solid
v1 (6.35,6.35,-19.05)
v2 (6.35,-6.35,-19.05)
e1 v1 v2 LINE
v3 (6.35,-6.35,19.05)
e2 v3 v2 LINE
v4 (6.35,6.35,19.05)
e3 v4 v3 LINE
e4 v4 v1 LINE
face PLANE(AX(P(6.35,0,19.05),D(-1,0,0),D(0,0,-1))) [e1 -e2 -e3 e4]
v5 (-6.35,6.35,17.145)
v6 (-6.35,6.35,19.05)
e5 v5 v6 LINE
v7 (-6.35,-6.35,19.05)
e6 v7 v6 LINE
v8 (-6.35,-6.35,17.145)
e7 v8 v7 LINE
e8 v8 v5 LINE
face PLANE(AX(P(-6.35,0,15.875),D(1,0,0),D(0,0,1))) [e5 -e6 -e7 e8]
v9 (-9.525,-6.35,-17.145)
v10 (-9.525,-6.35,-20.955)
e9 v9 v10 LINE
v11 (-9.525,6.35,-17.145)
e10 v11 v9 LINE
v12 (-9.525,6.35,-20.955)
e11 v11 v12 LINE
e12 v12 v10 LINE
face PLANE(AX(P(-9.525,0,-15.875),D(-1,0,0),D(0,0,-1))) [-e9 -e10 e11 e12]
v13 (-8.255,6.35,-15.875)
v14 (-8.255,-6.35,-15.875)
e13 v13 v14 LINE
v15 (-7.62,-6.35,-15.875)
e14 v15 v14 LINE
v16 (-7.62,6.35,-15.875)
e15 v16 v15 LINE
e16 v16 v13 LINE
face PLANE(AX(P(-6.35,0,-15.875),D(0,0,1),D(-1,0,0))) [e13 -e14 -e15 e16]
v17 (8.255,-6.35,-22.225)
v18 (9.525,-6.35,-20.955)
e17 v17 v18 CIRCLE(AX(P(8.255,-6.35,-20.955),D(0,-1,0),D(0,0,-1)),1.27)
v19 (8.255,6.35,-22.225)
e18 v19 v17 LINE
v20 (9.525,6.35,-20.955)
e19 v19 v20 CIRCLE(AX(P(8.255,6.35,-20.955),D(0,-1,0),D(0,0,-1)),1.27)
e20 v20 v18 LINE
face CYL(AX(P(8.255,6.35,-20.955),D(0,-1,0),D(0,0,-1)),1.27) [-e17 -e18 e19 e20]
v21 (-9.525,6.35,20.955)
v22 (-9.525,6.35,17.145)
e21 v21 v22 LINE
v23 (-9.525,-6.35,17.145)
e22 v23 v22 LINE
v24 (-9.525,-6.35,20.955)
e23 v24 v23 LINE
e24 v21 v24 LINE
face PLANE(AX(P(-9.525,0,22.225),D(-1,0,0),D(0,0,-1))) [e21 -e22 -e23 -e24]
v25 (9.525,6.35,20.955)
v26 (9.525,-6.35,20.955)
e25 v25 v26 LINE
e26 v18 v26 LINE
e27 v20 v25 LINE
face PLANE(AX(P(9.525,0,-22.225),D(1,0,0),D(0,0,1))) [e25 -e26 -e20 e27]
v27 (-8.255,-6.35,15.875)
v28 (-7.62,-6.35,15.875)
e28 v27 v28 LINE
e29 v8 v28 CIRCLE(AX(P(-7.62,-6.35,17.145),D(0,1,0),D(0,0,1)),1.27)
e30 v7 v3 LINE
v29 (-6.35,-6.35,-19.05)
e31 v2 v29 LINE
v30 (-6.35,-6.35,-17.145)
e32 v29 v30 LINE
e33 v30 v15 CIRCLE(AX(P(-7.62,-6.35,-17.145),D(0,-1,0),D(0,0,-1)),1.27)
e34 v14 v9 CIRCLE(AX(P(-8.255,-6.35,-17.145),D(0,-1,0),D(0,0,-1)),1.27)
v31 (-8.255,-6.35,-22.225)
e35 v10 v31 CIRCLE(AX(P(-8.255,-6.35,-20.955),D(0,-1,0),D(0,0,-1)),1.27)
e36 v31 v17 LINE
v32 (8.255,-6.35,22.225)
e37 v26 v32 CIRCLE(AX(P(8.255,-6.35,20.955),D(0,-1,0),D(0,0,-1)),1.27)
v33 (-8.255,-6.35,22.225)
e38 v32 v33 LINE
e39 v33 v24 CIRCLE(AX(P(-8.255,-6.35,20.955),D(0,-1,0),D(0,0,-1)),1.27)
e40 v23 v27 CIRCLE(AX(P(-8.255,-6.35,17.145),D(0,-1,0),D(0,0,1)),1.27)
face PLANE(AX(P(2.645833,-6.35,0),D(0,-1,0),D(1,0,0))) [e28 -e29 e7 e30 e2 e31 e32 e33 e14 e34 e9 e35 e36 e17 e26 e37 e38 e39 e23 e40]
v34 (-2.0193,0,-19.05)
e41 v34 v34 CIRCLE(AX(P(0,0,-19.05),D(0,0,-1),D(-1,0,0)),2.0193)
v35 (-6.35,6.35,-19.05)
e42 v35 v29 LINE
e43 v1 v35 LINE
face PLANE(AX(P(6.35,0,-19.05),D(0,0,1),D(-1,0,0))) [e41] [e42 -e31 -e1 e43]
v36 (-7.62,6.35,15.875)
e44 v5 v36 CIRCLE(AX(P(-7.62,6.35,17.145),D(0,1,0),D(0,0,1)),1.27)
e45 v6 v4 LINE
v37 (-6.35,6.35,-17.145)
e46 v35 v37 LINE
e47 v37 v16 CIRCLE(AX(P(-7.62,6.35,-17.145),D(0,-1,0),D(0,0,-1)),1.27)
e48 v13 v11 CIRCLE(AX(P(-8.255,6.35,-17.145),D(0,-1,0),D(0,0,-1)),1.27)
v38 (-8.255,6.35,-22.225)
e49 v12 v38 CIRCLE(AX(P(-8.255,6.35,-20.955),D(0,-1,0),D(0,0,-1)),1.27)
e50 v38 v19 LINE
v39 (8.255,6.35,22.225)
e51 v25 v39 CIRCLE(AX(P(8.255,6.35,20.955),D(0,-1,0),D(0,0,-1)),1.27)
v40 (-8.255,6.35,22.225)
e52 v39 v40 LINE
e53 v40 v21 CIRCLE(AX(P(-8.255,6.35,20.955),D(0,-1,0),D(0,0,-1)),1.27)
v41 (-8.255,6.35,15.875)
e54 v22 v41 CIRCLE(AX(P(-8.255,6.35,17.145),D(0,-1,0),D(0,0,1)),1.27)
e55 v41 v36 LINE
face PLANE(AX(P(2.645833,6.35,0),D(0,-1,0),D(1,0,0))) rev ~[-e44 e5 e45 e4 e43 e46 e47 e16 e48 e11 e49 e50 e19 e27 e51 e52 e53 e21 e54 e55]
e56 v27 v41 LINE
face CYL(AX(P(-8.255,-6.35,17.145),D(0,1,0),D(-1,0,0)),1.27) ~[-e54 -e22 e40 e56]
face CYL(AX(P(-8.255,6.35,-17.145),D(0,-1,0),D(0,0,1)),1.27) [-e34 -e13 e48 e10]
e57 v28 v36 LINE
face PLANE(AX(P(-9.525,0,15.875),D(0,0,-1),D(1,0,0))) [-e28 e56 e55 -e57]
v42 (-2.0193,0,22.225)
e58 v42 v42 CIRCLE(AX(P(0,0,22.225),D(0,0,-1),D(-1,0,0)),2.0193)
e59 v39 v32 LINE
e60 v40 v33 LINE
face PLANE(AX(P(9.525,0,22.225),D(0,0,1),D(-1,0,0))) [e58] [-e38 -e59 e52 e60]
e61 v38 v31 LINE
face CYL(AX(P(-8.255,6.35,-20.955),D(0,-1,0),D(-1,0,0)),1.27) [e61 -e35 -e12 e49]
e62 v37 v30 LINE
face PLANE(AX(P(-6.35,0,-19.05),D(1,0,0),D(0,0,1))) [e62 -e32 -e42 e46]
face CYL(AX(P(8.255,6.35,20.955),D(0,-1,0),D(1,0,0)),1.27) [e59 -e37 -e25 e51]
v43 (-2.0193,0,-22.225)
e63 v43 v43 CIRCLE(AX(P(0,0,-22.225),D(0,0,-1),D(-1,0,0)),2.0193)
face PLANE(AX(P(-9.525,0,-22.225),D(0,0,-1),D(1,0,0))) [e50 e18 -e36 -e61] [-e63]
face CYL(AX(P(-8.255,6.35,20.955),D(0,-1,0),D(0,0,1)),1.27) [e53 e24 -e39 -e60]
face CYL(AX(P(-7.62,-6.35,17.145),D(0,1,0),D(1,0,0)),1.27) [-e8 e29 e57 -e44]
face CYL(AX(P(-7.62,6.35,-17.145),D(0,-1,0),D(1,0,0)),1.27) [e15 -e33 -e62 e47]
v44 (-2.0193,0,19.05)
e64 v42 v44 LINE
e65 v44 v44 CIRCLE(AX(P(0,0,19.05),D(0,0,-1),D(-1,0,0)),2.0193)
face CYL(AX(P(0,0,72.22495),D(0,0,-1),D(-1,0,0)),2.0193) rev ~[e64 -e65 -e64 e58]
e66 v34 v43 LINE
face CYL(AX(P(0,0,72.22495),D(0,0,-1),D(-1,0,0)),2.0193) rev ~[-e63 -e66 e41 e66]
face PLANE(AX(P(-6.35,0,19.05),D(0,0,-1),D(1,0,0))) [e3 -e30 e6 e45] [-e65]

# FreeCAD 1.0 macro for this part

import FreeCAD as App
import Part
import Sketcher

V = App.Vector
Q = App.Units.Quantity


def edges_at(feature, points):
    """Names of the edges that pass closest to the given points."""
    edges = feature.Shape.Edges
    near = lambda p: min(range(len(edges)), key=lambda i: edges[i].distToShape(Part.Vertex(*p))[0])
    return sorted({f"Edge{near(p) + 1}" for p in points})


def add_polygon(sketch, points):
    """Adds a closed chain of lines whose ends are joined by coincident constraints."""
    first, n = sketch.GeometryCount, len(points)
    for a, b in zip(points, points[1:] + points[:1]):
        sketch.addGeometry(Part.LineSegment(App.Vector(*a, 0), App.Vector(*b, 0)), False)
    for i in range(n):
        sketch.addConstraint(Sketcher.Constraint("Coincident", first + i, 2, first + (i + 1) % n, 1))

doc = App.newDocument("Part")
body = doc.addObject("PartDesign::Body", "Body")

sketch1 = doc.addObject("Sketcher::SketchObject", "Sketch")
body.addObject(sketch1)
sketch1.AttachmentSupport = (doc.XZ_Plane, [""])
sketch1.MapMode = "FlatFace"
add_polygon(sketch1, [(-6.3, 19.1), (6.3, 19.1), (6.3, -19.1), (-6.3, -19.1), (-6.3, -15.9), (-9.5, -15.9), (-9.5, -22.2), (9.5, -22.2), (9.5, 22.2), (-9.5, 22.2), (-9.5, 15.9), (-6.3, 15.9)])
sketch1.addConstraint(Sketcher.Constraint("Horizontal", 0))
sketch1.addConstraint(Sketcher.Constraint("Vertical", 1))
sketch1.addConstraint(Sketcher.Constraint("Horizontal", 2))
sketch1.addConstraint(Sketcher.Constraint("Vertical", 3))
sketch1.addConstraint(Sketcher.Constraint("Horizontal", 4))
sketch1.addConstraint(Sketcher.Constraint("Vertical", 5))
sketch1.addConstraint(Sketcher.Constraint("Horizontal", 6))
sketch1.addConstraint(Sketcher.Constraint("Vertical", 7))
sketch1.addConstraint(Sketcher.Constraint("Horizontal", 8))
sketch1.addConstraint(Sketcher.Constraint("Vertical", 9))
sketch1.addConstraint(Sketcher.Constraint("Horizontal", 10))
sketch1.addConstraint(Sketcher.Constraint("Vertical", 11))
sketch1.addConstraint(Sketcher.Constraint("Symmetric", 0, 2, 2, 2, -1, 1))
sketch1.addConstraint(Sketcher.Constraint("Symmetric", 5, 2, 7, 2, -1, 1))
sketch1.addConstraint(Sketcher.Constraint("Symmetric", 4, 2, 9, 2, -1))
sketch1.addConstraint(Sketcher.Constraint("Vertical", 3, 2, 10, 2))
sketch1.addConstraint(Sketcher.Constraint("Equal", 10, 3))
sketch1.addConstraint(Sketcher.Constraint("DistanceX", 0, 1, 0, 2, Q("0.5 in")))
sketch1.addConstraint(Sketcher.Constraint("DistanceY", 1, 2, 1, 1, Q("1.5 in")))
sketch1.addConstraint(Sketcher.Constraint("DistanceX", 6, 1, 6, 2, Q("0.75 in")))
sketch1.addConstraint(Sketcher.Constraint("DistanceY", 5, 2, 5, 1, Q("0.25 in")))
pad1 = doc.addObject("PartDesign::Pad", "Pad")
body.addObject(pad1)
pad1.Profile = sketch1
pad1.Type = "TwoLengths"
pad1.Length = Q("0.25 in")
pad1.Length2 = Q("0.25 in")

sketch2 = doc.addObject("Sketcher::SketchObject", "Sketch001")
body.addObject(sketch2)
sketch2.AttachmentSupport = (doc.XY_Plane, [""])
sketch2.MapMode = "FlatFace"
sketch2.AttachmentOffset = App.Placement(V(0, 0, 0.875 * 25.4), App.Rotation())
sketch2.addGeometry(Part.Circle(V(0, 0, 0), V(0, 0, 1), 2), False)
sketch2.addConstraint(Sketcher.Constraint("Coincident", 0, 3, -1, 1))
sketch2.addConstraint(Sketcher.Constraint("Diameter", 0, Q("0.159 in")))
doc.recompute()
hole = doc.addObject("PartDesign::Hole", "Hole")
body.addObject(hole)
hole.Profile = sketch2
hole.ThreadType = "None"
hole.Diameter = Q("0.159 in")
hole.DepthType = "ThroughAll"
doc.recompute()

fillet = doc.addObject("PartDesign::Fillet", "Fillet")
body.addObject(fillet)
fillet.Base = (hole, edges_at(hole, [
    (-9.525, 0, 22.225),
    (-9.525, 0, 15.875),
    (-6.35, 0, 15.875),
    (9.525, 0, 22.225),
    (9.525, 0, -22.225),
    (-9.525, 0, -22.225),
    (-9.525, 0, -15.875),
    (-6.35, 0, -15.875),
]))
fillet.Radius = Q("0.05 in")

doc.recompute()
